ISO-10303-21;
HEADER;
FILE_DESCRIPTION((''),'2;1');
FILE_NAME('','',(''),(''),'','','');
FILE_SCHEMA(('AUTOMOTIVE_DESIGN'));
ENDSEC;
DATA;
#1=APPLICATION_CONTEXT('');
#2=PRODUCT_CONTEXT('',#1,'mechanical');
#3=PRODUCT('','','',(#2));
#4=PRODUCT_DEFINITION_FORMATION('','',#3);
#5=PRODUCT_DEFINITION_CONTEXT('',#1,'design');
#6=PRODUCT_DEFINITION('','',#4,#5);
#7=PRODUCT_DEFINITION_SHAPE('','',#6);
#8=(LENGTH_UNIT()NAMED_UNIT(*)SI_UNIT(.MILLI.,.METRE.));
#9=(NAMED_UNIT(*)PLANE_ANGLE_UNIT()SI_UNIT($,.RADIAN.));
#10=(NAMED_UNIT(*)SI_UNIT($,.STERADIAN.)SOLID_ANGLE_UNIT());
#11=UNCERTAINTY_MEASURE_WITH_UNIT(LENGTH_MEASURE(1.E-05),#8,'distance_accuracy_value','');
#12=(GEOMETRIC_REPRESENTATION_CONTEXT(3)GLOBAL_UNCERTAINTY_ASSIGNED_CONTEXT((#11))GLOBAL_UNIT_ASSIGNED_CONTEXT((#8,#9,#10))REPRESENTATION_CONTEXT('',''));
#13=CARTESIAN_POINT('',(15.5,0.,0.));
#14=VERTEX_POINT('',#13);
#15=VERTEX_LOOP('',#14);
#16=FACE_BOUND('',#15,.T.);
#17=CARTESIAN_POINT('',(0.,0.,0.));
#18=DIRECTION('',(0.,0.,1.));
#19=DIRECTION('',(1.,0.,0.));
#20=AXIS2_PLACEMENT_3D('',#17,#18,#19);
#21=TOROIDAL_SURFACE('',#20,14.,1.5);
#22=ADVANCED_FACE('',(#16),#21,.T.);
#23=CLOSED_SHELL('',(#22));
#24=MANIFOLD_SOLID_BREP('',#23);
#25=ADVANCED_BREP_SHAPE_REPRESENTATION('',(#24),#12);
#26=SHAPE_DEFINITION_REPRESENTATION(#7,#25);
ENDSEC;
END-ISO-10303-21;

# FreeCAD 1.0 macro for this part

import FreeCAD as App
import Part
import Sketcher
Q = App.Units.Quantity

doc = App.newDocument("Part")
body = doc.addObject("PartDesign::Body", "Body")

# Sketch on XZ plane
sketch1 = body.newObject("Sketcher::SketchObject", "Sketch")
sketch1.AttachmentSupport = (doc.getObject("XZ_Plane"), [""])
sketch1.MapMode = "FlatFace"
sketch1.addGeometry(Part.Circle(App.Vector(14, 0, 0), App.Vector(0, 0, 1), 1.5), False)
sketch1.addConstraint(Sketcher.Constraint("PointOnObject", 0, 3, -1))
sketch1.addConstraint(Sketcher.Constraint("Diameter", 0, Q("3 mm")))
sketch1.addConstraint(Sketcher.Constraint("DistanceX", -1, 1, 0, 3, Q("14 mm")))
revolution = body.newObject("PartDesign::Revolution", "Revolution")
revolution.Profile = sketch1
revolution.ReferenceAxis = (sketch1, ["V_Axis"])
revolution.Angle = 360

doc.recompute()
